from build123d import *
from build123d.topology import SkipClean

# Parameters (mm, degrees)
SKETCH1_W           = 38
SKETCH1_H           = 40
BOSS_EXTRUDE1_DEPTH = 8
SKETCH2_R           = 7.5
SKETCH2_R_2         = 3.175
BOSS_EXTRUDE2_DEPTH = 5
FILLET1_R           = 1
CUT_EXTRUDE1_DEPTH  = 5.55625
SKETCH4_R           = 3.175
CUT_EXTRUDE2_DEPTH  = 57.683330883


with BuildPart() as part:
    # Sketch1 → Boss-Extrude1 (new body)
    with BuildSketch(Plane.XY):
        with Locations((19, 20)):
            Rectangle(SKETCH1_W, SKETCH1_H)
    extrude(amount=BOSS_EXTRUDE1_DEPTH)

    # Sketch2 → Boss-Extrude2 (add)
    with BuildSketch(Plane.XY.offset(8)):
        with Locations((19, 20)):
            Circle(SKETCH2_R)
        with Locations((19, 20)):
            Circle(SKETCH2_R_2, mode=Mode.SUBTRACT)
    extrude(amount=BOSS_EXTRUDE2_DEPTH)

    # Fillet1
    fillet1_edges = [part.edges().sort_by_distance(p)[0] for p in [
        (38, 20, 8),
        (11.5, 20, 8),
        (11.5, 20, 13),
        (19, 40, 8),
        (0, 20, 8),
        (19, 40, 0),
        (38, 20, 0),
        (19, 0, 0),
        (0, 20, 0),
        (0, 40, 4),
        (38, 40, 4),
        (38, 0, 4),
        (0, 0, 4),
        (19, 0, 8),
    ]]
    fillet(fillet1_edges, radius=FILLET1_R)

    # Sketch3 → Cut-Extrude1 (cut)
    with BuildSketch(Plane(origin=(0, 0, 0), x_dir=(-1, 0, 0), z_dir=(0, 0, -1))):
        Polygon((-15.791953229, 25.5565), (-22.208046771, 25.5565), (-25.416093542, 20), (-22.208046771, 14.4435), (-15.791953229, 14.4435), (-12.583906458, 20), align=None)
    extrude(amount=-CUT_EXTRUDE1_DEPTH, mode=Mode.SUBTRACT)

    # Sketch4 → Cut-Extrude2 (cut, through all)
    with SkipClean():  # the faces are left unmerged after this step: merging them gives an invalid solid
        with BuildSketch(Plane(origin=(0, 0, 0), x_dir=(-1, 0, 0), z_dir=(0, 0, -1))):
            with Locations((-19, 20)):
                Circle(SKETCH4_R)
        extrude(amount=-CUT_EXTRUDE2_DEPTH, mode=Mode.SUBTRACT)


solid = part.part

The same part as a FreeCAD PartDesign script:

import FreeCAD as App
import Part
import Sketcher

V = App.Vector
Q = App.Units.Quantity


def edges_at(feature, points):
    """Names of the edges that pass closest to the given points."""
    edges = feature.Shape.Edges
    near = lambda p: min(range(len(edges)), key=lambda i: edges[i].distToShape(Part.Vertex(*p))[0])
    return sorted({f"Edge{near(p) + 1}" for p in points})


def add_polygon(sketch, points):
    """Adds a closed chain of lines whose ends are joined by coincident constraints."""
    first, n = sketch.GeometryCount, len(points)
    for a, b in zip(points, points[1:] + points[:1]):
        sketch.addGeometry(Part.LineSegment(App.Vector(*a, 0), App.Vector(*b, 0)), False)
    for i in range(n):
        sketch.addConstraint(Sketcher.Constraint("Coincident", first + i, 2, first + (i + 1) % n, 1))

doc = App.newDocument("Part")
body = doc.addObject("PartDesign::Body", "Body")

# Sketch on XY plane
sketch1 = doc.addObject("Sketcher::SketchObject", "Sketch")
body.addObject(sketch1)
sketch1.AttachmentSupport = (doc.XY_Plane, [""])
sketch1.MapMode = "FlatFace"
add_polygon(sketch1, [(0, 40), (0, 0), (38, 0), (38, 40)])  # lines 0-3
sketch1.addConstraint(Sketcher.Constraint("Vertical", 0))
sketch1.addConstraint(Sketcher.Constraint("Horizontal", 1))
sketch1.addConstraint(Sketcher.Constraint("Vertical", 2))
sketch1.addConstraint(Sketcher.Constraint("Horizontal", 3))
sketch1.addConstraint(Sketcher.Constraint("Coincident", 0, 2, -1, 1))
sketch1.addConstraint(Sketcher.Constraint("DistanceX", 1, 1, 1, 2, Q("38 mm")))
sketch1.addConstraint(Sketcher.Constraint("DistanceY", 0, 2, 0, 1, Q("40 mm")))
pad1 = doc.addObject("PartDesign::Pad", "Pad")
body.addObject(pad1)
pad1.Profile = sketch1
pad1.Length = 8

# Sketch on XY plane
sketch2 = doc.addObject("Sketcher::SketchObject", "Sketch001")
body.addObject(sketch2)
sketch2.AttachmentSupport = (doc.XY_Plane, [""])
sketch2.MapMode = "FlatFace"
sketch2.AttachmentOffset = App.Placement(V(0, 0, 8), App.Rotation())
sketch2.addGeometry(Part.Circle(V(19, 20, 0), V(0, 0, 1), 7.5), False)
sketch2.addGeometry(Part.Circle(V(19, 20, 0), V(0, 0, 1), 3.2), False)
sketch2.addConstraint(Sketcher.Constraint("Coincident", 1, 3, 0, 3))
sketch2.addConstraint(Sketcher.Constraint("Diameter", 0, Q("15 mm")))
sketch2.addConstraint(Sketcher.Constraint("Diameter", 1, Q("6.35 mm")))
sketch2.addConstraint(Sketcher.Constraint("DistanceX", -1, 1, 0, 3, Q("19 mm")))
sketch2.addConstraint(Sketcher.Constraint("DistanceY", -1, 1, 0, 3, Q("20 mm")))
pad2 = doc.addObject("PartDesign::Pad", "Pad001")
body.addObject(pad2)
pad2.Profile = sketch2
pad2.Length = 5
doc.recompute()

fillet = doc.addObject("PartDesign::Fillet", "Fillet")
body.addObject(fillet)
fillet.Base = (pad2, edges_at(pad2, [
    (38, 20, 8),
    (11.5, 20, 8),
    (11.5, 20, 13),
    (19, 40, 8),
    (0, 20, 8),
    (19, 40, 0),
    (38, 20, 0),
    (19, 0, 0),
    (0, 20, 0),
    (0, 40, 4),
    (38, 40, 4),
    (38, 0, 4),
    (0, 0, 4),
    (19, 0, 8),
]))
fillet.Radius = 1

# Sketch on XY plane
sketch3 = doc.addObject("Sketcher::SketchObject", "Sketch002")
body.addObject(sketch3)
sketch3.AttachmentSupport = (doc.XY_Plane, [""])
sketch3.MapMode = "FlatFace"
add_polygon(sketch3, [(16, 26), (22, 26), (25, 20), (22, 14), (16, 14), (13, 20)])  # lines 0-5
sketch3.addConstraint(Sketcher.Constraint("Horizontal", 0))
sketch3.addConstraint(Sketcher.Constraint("Horizontal", 3))
sketch3.addConstraint(Sketcher.Constraint("Parallel", 1, 4))
sketch3.addConstraint(Sketcher.Constraint("Parallel", 2, 5))
sketch3.addConstraint(Sketcher.Constraint("Horizontal", 1, 2, 4, 2))
sketch3.addConstraint(Sketcher.Constraint("Vertical", 0, 2, 2, 2))
sketch3.addConstraint(Sketcher.Constraint("Vertical", 3, 2, 5, 2))
sketch3.addConstraint(Sketcher.Constraint("Angle", 1, Q("-60 deg")))
sketch3.addConstraint(Sketcher.Constraint("DistanceY", -1, 1, 1, 2, Q("20 mm")))
sketch3.addConstraint(Sketcher.Constraint("DistanceY", 2, 2, 0, 2, Q("11.113 mm")))
sketch3.addConstraint(Sketcher.Constraint("DistanceX", 0, 1, 0, 2, Q("6.416094 mm")))
sketch3.addConstraint(Sketcher.Constraint("DistanceX", -1, 1, 0, 2, Q("22.208047 mm")))
pocket1 = doc.addObject("PartDesign::Pocket", "Pocket")
body.addObject(pocket1)
pocket1.Profile = sketch3
pocket1.Length = 5.55625
pocket1.Reversed = True

# Sketch on XY plane
sketch4 = doc.addObject("Sketcher::SketchObject", "Sketch003")
body.addObject(sketch4)
sketch4.AttachmentSupport = (doc.XY_Plane, [""])
sketch4.MapMode = "FlatFace"
sketch4.addGeometry(Part.Circle(V(19, 20, 0), V(0, 0, 1), 3.2), False)
sketch4.addConstraint(Sketcher.Constraint("Diameter", 0, Q("6.35 mm")))
sketch4.addConstraint(Sketcher.Constraint("DistanceX", -1, 1, 0, 3, Q("19 mm")))
sketch4.addConstraint(Sketcher.Constraint("DistanceY", -1, 1, 0, 3, Q("20 mm")))
pocket2 = doc.addObject("PartDesign::Pocket", "Pocket001")
body.addObject(pocket2)
pocket2.Profile = sketch4
pocket2.Type = "ThroughAll"
pocket2.Reversed = True

doc.recompute()
